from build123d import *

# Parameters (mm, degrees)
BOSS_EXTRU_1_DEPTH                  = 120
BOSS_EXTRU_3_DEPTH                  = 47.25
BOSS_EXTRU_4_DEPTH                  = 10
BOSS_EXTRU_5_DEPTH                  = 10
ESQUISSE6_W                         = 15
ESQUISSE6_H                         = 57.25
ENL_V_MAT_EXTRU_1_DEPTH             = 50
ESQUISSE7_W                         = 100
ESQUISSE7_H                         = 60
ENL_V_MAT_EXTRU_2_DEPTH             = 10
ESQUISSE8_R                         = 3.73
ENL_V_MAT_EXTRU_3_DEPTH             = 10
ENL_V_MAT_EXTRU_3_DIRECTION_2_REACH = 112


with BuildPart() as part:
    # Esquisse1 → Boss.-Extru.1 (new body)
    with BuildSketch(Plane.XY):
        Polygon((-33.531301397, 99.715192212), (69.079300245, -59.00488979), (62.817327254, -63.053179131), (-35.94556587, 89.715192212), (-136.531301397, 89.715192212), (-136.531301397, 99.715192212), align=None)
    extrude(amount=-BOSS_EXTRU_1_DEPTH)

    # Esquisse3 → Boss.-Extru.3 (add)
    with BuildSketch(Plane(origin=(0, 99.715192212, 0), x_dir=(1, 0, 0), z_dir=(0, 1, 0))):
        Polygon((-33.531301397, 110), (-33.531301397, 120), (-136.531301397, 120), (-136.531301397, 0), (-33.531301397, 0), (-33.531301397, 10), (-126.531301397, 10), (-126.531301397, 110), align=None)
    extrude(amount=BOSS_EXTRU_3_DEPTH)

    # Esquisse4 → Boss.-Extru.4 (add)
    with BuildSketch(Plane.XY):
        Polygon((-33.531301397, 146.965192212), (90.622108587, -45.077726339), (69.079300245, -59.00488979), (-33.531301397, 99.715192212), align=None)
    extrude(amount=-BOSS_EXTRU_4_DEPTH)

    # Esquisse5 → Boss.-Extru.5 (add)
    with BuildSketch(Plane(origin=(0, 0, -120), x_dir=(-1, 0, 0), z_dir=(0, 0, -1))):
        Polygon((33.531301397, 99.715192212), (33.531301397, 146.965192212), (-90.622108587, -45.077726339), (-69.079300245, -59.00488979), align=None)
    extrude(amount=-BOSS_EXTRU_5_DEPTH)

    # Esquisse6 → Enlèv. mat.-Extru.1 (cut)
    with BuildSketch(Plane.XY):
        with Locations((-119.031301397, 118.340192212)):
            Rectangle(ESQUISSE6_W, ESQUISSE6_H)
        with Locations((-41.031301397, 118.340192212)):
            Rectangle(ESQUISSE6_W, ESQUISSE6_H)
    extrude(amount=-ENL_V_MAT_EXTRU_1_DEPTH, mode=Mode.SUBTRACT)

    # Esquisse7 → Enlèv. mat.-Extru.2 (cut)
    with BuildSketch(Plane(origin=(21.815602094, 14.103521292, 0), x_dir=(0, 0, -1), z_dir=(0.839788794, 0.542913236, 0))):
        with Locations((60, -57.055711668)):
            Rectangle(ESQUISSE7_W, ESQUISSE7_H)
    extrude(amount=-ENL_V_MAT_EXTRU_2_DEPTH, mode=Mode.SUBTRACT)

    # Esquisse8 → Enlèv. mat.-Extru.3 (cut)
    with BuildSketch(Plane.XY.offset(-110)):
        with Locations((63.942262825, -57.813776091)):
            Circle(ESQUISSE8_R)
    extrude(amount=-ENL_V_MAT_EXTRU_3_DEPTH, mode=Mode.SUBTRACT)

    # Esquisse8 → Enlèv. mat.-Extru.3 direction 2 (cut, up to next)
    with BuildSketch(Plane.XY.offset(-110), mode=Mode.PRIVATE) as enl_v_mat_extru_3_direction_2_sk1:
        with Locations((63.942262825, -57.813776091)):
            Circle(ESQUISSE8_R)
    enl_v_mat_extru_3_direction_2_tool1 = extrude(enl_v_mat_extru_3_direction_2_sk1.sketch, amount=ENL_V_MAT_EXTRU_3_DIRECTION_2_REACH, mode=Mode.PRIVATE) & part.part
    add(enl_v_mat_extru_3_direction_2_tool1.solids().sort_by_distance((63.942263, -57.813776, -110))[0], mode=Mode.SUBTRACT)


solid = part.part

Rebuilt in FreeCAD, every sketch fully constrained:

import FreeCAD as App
import Part
import Sketcher


def add_polygon(sketch, points):
    """Adds a closed chain of lines whose ends are joined by coincident constraints."""
    first, n = sketch.GeometryCount, len(points)
    for a, b in zip(points, points[1:] + points[:1]):
        sketch.addGeometry(Part.LineSegment(App.Vector(*a, 0), App.Vector(*b, 0)), False)
    for i in range(n):
        sketch.addConstraint(Sketcher.Constraint("Coincident", first + i, 2, first + (i + 1) % n, 1))

doc = App.newDocument("Part")
body = doc.addObject("PartDesign::Body", "Body")

sketch1 = doc.addObject("Sketcher::SketchObject", "Sketch")
body.addObject(sketch1)
sketch1.AttachmentSupport = (doc.XY_Plane, [""])
sketch1.MapMode = "FlatFace"
add_polygon(sketch1, [(69.0793, -59.00489), (-33.531301, 99.715192), (-136.531301, 99.715192), (-136.531301, 89.715192), (-35.945566, 89.715192), (62.817327, -63.053179)])
sketch1.addConstraint([
    Sketcher.Constraint("Horizontal", 1),
    Sketcher.Constraint("Vertical", 2),
    Sketcher.Constraint("Horizontal", 3),
    Sketcher.Constraint("Parallel", 0, 4),
    Sketcher.Constraint("Perpendicular", 4, 5),
    Sketcher.Constraint("DistanceX", 1, 2, 1, 1, 103.0),
    Sketcher.Constraint("DistanceY", 2, 2, 2, 1, 10.0),
    Sketcher.Constraint("Distance", 0, 189.0),
    Sketcher.Constraint("DistanceX", 0, 2, -1, 1, 33.531301),
    Sketcher.Constraint("DistanceX", -1, 1, 5, 2, 69.0793),
    Sketcher.Constraint("Distance", 4, 181.912848),
    Sketcher.Constraint("DistanceY", 4, 2, -1, 1, 63.053179),
])
pad1 = doc.addObject("PartDesign::Pad", "Pad")
body.addObject(pad1)
pad1.Profile = sketch1
pad1.Length = 120
pad1.Reversed = True

sketch2 = doc.addObject("Sketcher::SketchObject", "Sketch001")
body.addObject(sketch2)
sketch2.AttachmentSupport = (doc.XZ_Plane, [""])
sketch2.MapMode = "FlatFace"
sketch2.AttachmentOffset = App.Placement(App.Vector(0, 0, -99.715192), App.Rotation())
add_polygon(sketch2, [(-33.531301, -110), (-33.531301, -120), (-136.531301, -120), (-136.531301, 0), (-33.531301, 0), (-33.531301, -10), (-126.531301, -10), (-126.531301, -110)])
sketch2.addConstraint([
    Sketcher.Constraint("Vertical", 0),
    Sketcher.Constraint("Horizontal", 1),
    Sketcher.Constraint("Vertical", 2),
    Sketcher.Constraint("Horizontal", 3),
    Sketcher.Constraint("Vertical", 4),
    Sketcher.Constraint("Horizontal", 5),
    Sketcher.Constraint("Vertical", 6),
    Sketcher.Constraint("Horizontal", 7),
    Sketcher.Constraint("PointOnObject", 2, 2, -1),
    Sketcher.Constraint("Vertical", 0, 2, 3, 2),
    Sketcher.Constraint("Equal", 0, 4),
    Sketcher.Constraint("DistanceX", 1, 2, 1, 1, 103.0),
    Sketcher.Constraint("DistanceX", 5, 2, 5, 1, 93.0),
    Sketcher.Constraint("DistanceY", 0, 2, 0, 1, 10.0),
    Sketcher.Constraint("DistanceY", 2, 1, 2, 2, 120.0),
    Sketcher.Constraint("DistanceX", 0, 2, -1, 1, 33.531301),
])
pad2 = doc.addObject("PartDesign::Pad", "Pad001")
body.addObject(pad2)
pad2.Profile = sketch2
pad2.Length = 47.25
pad2.Reversed = True

sketch3 = doc.addObject("Sketcher::SketchObject", "Sketch002")
body.addObject(sketch3)
sketch3.AttachmentSupport = (doc.XY_Plane, [""])
sketch3.MapMode = "FlatFace"
add_polygon(sketch3, [(90.622109, -45.077726), (-33.531301, 146.965192), (-33.531301, 99.715192), (69.0793, -59.00489)])
sketch3.addConstraint([
    Sketcher.Constraint("Vertical", 1),
    Sketcher.Constraint("Parallel", 0, 2),
    Sketcher.Constraint("Perpendicular", 2, 3),
    Sketcher.Constraint("Distance", 2, 189.0),
    Sketcher.Constraint("DistanceY", 1, 2, 1, 1, 47.25),
    Sketcher.Constraint("DistanceX", 0, 2, -1, 1, 33.531301),
    Sketcher.Constraint("DistanceX", -1, 1, 2, 2, 69.0793),
    Sketcher.Constraint("DistanceY", 2, 2, -1, 1, 59.00489),
])
pad3 = doc.addObject("PartDesign::Pad", "Pad002")
body.addObject(pad3)
pad3.Profile = sketch3
pad3.Length = 10
pad3.Reversed = True

sketch4 = doc.addObject("Sketcher::SketchObject", "Sketch003")
body.addObject(sketch4)
sketch4.AttachmentSupport = (doc.XY_Plane, [""])
sketch4.MapMode = "FlatFace"
sketch4.AttachmentOffset = App.Placement(App.Vector(0, 0, -120), App.Rotation())
add_polygon(sketch4, [(-33.531301, 99.715192), (-33.531301, 146.965192), (90.622109, -45.077726), (69.0793, -59.00489)])
sketch4.addConstraint([
    Sketcher.Constraint("Vertical", 0),
    Sketcher.Constraint("Perpendicular", 1, 2),
    Sketcher.Constraint("Perpendicular", 2, 3),
    Sketcher.Constraint("Distance", 3, 189.0),
    Sketcher.Constraint("DistanceY", 0, 1, 0, 2, 47.25),
    Sketcher.Constraint("DistanceX", 0, 2, -1, 1, 33.531301),
    Sketcher.Constraint("DistanceX", -1, 1, 2, 2, 69.0793),
    Sketcher.Constraint("DistanceY", 2, 2, -1, 1, 59.00489),
])
pad4 = doc.addObject("PartDesign::Pad", "Pad003")
body.addObject(pad4)
pad4.Profile = sketch4
pad4.Length = 10

sketch5 = doc.addObject("Sketcher::SketchObject", "Sketch004")
body.addObject(sketch5)
sketch5.AttachmentSupport = (doc.XY_Plane, [""])
sketch5.MapMode = "FlatFace"
add_polygon(sketch5, [(-126.531301, 146.965192), (-126.531301, 89.715192), (-111.531301, 89.715192), (-111.531301, 146.965192)])
add_polygon(sketch5, [(-48.531301, 146.965192), (-48.531301, 89.715192), (-33.531301, 89.715192), (-33.531301, 146.965192)])
sketch5.addConstraint([
    Sketcher.Constraint("Vertical", 0),
    Sketcher.Constraint("Horizontal", 1),
    Sketcher.Constraint("Vertical", 2),
    Sketcher.Constraint("Horizontal", 3),
    Sketcher.Constraint("Vertical", 4),
    Sketcher.Constraint("Horizontal", 5),
    Sketcher.Constraint("Vertical", 6),
    Sketcher.Constraint("Horizontal", 7),
    Sketcher.Constraint("Horizontal", 1, 2, 4, 2),
    Sketcher.Constraint("Horizontal", 3, 2, 6, 2),
    Sketcher.Constraint("Equal", 3, 5),
    Sketcher.Constraint("DistanceX", 1, 1, 1, 2, 15.0),
    Sketcher.Constraint("DistanceX", 1, 2, 4, 2, 63.0),
    Sketcher.Constraint("DistanceY", 0, 2, 0, 1, 57.25),
    Sketcher.Constraint("DistanceX", 0, 2, -1, 1, 126.531301),
    Sketcher.Constraint("DistanceY", -1, 1, 0, 2, 89.715192),
])
pocket1 = doc.addObject("PartDesign::Pocket", "Pocket")
body.addObject(pocket1)
pocket1.Profile = sketch5
pocket1.Length = 50

sketch6 = doc.addObject("Sketcher::SketchObject", "Sketch005")
body.addObject(sketch6)
sketch6.Placement = App.Placement(App.Vector(21.815602, 14.103521, 0), App.Rotation(App.Vector(0, 0, -1), App.Vector(-0.542913236, 0.839788794, 0), App.Vector(0.839788794, 0.542913236, 0), "ZXY"))
add_polygon(sketch6, [(10, -27.055712), (10, -87.055712), (110, -87.055712), (110, -27.055712)])
sketch6.addConstraint([
    Sketcher.Constraint("Vertical", 0),
    Sketcher.Constraint("Horizontal", 1),
    Sketcher.Constraint("Vertical", 2),
    Sketcher.Constraint("Horizontal", 3),
    Sketcher.Constraint("DistanceX", 1, 1, 1, 2, 100.0),
    Sketcher.Constraint("DistanceY", 0, 2, 0, 1, 60.0),
    Sketcher.Constraint("DistanceX", -1, 1, 0, 2, 10.0),
    Sketcher.Constraint("DistanceY", 0, 2, -1, 1, 87.055712),
])
pocket2 = doc.addObject("PartDesign::Pocket", "Pocket001")
body.addObject(pocket2)
pocket2.Profile = sketch6
pocket2.Length = 10

sketch7 = doc.addObject("Sketcher::SketchObject", "Sketch006")
body.addObject(sketch7)
sketch7.AttachmentSupport = (doc.XY_Plane, [""])
sketch7.MapMode = "FlatFace"
sketch7.AttachmentOffset = App.Placement(App.Vector(0, 0, -110), App.Rotation())
sketch7.addGeometry(Part.Circle(App.Vector(63.942263, -57.813776, 0), App.Vector(0, 0, 1), 3.73), False)
sketch7.addConstraint([
    Sketcher.Constraint("Diameter", 0, 7.46),
    Sketcher.Constraint("DistanceX", -1, 1, 0, 3, 63.942263),
    Sketcher.Constraint("DistanceY", 0, 3, -1, 1, 57.813776),
])
pocket3 = doc.addObject("PartDesign::Pocket", "Pocket002")
body.addObject(pocket3)
pocket3.Profile = sketch7
pocket3.Length = 10

sketch8 = doc.addObject("Sketcher::SketchObject", "Sketch007")
body.addObject(sketch8)
sketch8.AttachmentSupport = (doc.XY_Plane, [""])
sketch8.MapMode = "FlatFace"
sketch8.AttachmentOffset = App.Placement(App.Vector(0, 0, -110), App.Rotation())
sketch8.addGeometry(Part.Circle(App.Vector(63.942263, -57.813776, 0), App.Vector(0, 0, 1), 3.73), False)
sketch8.addConstraint([
    Sketcher.Constraint("Diameter", 0, 7.46),
    Sketcher.Constraint("DistanceX", -1, 1, 0, 3, 63.942263),
    Sketcher.Constraint("DistanceY", 0, 3, -1, 1, 57.813776),
])
pocket4 = doc.addObject("PartDesign::Pocket", "Pocket003")
body.addObject(pocket4)
pocket4.Profile = sketch8
pocket4.Length = 110
pocket4.Reversed = True

doc.recompute()
